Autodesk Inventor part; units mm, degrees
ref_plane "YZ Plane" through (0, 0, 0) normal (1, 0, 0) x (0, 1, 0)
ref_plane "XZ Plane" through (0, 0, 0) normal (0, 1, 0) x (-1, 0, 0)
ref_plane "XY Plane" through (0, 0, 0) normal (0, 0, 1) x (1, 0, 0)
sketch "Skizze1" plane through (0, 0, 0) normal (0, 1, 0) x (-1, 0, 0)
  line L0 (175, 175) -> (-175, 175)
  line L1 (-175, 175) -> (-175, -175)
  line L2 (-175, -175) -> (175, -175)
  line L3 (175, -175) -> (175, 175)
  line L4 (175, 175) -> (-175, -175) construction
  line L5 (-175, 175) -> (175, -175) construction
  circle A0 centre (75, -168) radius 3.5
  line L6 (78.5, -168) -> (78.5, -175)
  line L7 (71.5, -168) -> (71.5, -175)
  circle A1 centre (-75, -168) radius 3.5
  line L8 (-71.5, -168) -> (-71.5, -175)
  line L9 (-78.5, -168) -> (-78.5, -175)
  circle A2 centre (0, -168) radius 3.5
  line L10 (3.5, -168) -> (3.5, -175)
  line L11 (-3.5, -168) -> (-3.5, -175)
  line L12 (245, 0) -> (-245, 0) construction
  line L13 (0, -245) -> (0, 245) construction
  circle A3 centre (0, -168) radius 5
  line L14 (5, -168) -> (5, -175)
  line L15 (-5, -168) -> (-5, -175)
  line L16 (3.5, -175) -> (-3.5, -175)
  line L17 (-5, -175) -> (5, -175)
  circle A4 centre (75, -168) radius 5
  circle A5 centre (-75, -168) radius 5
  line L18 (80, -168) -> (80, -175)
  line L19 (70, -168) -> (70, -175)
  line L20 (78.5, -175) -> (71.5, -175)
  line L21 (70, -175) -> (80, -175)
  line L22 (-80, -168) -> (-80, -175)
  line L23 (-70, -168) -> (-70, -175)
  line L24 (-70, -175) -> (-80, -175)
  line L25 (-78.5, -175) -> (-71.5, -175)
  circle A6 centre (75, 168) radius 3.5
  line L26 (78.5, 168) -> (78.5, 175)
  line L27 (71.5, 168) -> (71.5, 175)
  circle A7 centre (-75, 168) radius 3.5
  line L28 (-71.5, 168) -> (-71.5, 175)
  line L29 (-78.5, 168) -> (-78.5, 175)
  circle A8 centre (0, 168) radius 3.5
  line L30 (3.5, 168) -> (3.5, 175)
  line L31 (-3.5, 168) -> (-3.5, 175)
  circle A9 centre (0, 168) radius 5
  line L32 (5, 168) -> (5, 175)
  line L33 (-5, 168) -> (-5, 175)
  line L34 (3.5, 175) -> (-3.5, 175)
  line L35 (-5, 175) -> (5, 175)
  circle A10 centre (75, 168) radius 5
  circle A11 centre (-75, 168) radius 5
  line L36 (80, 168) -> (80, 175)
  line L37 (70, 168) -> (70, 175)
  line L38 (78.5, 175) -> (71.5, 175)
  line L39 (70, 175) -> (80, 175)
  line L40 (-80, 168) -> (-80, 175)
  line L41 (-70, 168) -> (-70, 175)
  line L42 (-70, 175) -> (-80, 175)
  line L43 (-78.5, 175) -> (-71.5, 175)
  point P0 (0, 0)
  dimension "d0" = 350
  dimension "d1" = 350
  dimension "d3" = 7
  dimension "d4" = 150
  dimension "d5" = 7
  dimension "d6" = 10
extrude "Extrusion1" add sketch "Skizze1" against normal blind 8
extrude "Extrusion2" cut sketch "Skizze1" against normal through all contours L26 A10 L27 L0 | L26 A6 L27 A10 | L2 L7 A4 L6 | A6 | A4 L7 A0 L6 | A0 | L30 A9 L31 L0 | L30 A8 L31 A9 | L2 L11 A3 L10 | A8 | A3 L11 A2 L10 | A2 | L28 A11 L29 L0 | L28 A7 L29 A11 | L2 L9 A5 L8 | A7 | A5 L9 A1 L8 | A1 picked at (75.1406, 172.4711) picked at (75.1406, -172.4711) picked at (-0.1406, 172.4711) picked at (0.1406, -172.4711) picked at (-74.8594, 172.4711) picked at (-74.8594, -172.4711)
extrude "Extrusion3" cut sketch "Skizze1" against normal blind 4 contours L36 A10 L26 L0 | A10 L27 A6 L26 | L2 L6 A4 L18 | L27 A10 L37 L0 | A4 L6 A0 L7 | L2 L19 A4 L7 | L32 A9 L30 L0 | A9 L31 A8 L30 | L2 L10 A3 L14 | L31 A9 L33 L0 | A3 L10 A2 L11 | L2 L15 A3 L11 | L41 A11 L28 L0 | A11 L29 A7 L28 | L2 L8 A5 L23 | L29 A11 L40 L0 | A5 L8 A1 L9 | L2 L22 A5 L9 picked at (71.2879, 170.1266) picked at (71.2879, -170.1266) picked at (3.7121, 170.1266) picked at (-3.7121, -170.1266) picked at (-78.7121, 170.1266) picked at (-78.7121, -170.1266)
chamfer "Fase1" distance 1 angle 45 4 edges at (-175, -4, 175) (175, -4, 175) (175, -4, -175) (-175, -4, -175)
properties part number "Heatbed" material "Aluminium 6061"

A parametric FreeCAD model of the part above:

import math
import FreeCAD as App
import Part
import Sketcher
from FreeCAD import Vector
Q = App.Units.Quantity


def edges_at(feature, points):
    """Names of the edges that pass closest to the given points."""
    edges = feature.Shape.Edges
    near = lambda p: min(range(len(edges)), key=lambda i: edges[i].distToShape(Part.Vertex(*p))[0])
    return sorted({f"Edge{near(p) + 1}" for p in points})

doc = App.newDocument("Part")
body = doc.addObject("PartDesign::Body", "Body")

# Sketch on XZ plane
sketch1 = body.newObject("Sketcher::SketchObject", "Sketch")
sketch1.AttachmentSupport = (doc.getObject("XZ_Plane"), [""])
sketch1.MapMode = "FlatFace"
sketch1.addGeometry(Part.LineSegment(Vector(-175, -175, 0), Vector(-175, 175, 0)), False)
sketch1.addGeometry(Part.LineSegment(Vector(-175, 175, 0), Vector(175, 175, 0)), False)
sketch1.addGeometry(Part.LineSegment(Vector(175, 175, 0), Vector(175, -175, 0)), False)
sketch1.addGeometry(Part.LineSegment(Vector(175, -175, 0), Vector(-175, -175, 0)), False)
sketch1.addConstraint(Sketcher.Constraint("Coincident", 0, 2, 1, 1))
sketch1.addConstraint(Sketcher.Constraint("Coincident", 1, 2, 2, 1))
sketch1.addConstraint(Sketcher.Constraint("Coincident", 2, 2, 3, 1))
sketch1.addConstraint(Sketcher.Constraint("Coincident", 3, 2, 0, 1))
sketch1.addConstraint(Sketcher.Constraint("Vertical", 0))
sketch1.addConstraint(Sketcher.Constraint("Horizontal", 1))
sketch1.addConstraint(Sketcher.Constraint("Vertical", 2))
sketch1.addConstraint(Sketcher.Constraint("Horizontal", 3))
sketch1.addConstraint(Sketcher.Constraint("Symmetric", 0, 2, 2, 2, -1, 1))
sketch1.addConstraint(Sketcher.Constraint("Equal", 3, 0))
sketch1.addConstraint(Sketcher.Constraint("DistanceX", 1, 1, 1, 2, Q("350 mm")))
pad1 = body.newObject("PartDesign::Pad", "Pad")
pad1.Profile = sketch1
pad1.Length = 8

# Sketch on XZ plane
sketch2 = body.newObject("Sketcher::SketchObject", "Sketch001")
sketch2.AttachmentSupport = (doc.getObject("XZ_Plane"), [""])
sketch2.MapMode = "FlatFace"
sketch2.addGeometry(Part.LineSegment(Vector(-78.5, 175, 0), Vector(-71.5, 175, 0)), False)
sketch2.addGeometry(Part.LineSegment(Vector(-71.5, 175, 0), Vector(-71.5, 168, 0)), False)
sketch2.addGeometry(Part.ArcOfCircle(Part.Circle(Vector(-75, 168, 0), Vector(0, 0, 1), 3.5), math.radians(180), math.radians(360)), False)
sketch2.addGeometry(Part.LineSegment(Vector(-78.5, 168, 0), Vector(-78.5, 175, 0)), False)
sketch2.addGeometry(Part.LineSegment(Vector(-71.5, -175, 0), Vector(-78.5, -175, 0)), False)
sketch2.addGeometry(Part.LineSegment(Vector(-78.5, -175, 0), Vector(-78.5, -168, 0)), False)
sketch2.addGeometry(Part.ArcOfCircle(Part.Circle(Vector(-75, -168, 0), Vector(0, 0, 1), 3.5), math.radians(0), math.radians(180)), False)
sketch2.addGeometry(Part.LineSegment(Vector(-71.5, -168, 0), Vector(-71.5, -175, 0)), False)
sketch2.addGeometry(Part.LineSegment(Vector(-3.5, 175, 0), Vector(3.5, 175, 0)), False)
sketch2.addGeometry(Part.LineSegment(Vector(3.5, 175, 0), Vector(3.5, 168, 0)), False)
sketch2.addGeometry(Part.ArcOfCircle(Part.Circle(Vector(0, 168, 0), Vector(0, 0, 1), 3.5), math.radians(180), math.radians(360)), False)
sketch2.addGeometry(Part.LineSegment(Vector(-3.5, 168, 0), Vector(-3.5, 175, 0)), False)
sketch2.addGeometry(Part.LineSegment(Vector(3.5, -175, 0), Vector(-3.5, -175, 0)), False)
sketch2.addGeometry(Part.LineSegment(Vector(-3.5, -175, 0), Vector(-3.5, -168, 0)), False)
sketch2.addGeometry(Part.ArcOfCircle(Part.Circle(Vector(0, -168, 0), Vector(0, 0, 1), 3.5), math.radians(0), math.radians(180)), False)
sketch2.addGeometry(Part.LineSegment(Vector(3.5, -168, 0), Vector(3.5, -175, 0)), False)
sketch2.addGeometry(Part.LineSegment(Vector(71.5, 175, 0), Vector(78.5, 175, 0)), False)
sketch2.addGeometry(Part.LineSegment(Vector(78.5, 175, 0), Vector(78.5, 168, 0)), False)
sketch2.addGeometry(Part.ArcOfCircle(Part.Circle(Vector(75, 168, 0), Vector(0, 0, 1), 3.5), math.radians(180), math.radians(360)), False)
sketch2.addGeometry(Part.LineSegment(Vector(71.5, 168, 0), Vector(71.5, 175, 0)), False)
sketch2.addGeometry(Part.LineSegment(Vector(78.5, -175, 0), Vector(71.5, -175, 0)), False)
sketch2.addGeometry(Part.LineSegment(Vector(71.5, -175, 0), Vector(71.5, -168, 0)), False)
sketch2.addGeometry(Part.ArcOfCircle(Part.Circle(Vector(75, -168, 0), Vector(0, 0, 1), 3.5), math.radians(0), math.radians(180)), False)
sketch2.addGeometry(Part.LineSegment(Vector(78.5, -168, 0), Vector(78.5, -175, 0)), False)
sketch2.addConstraint(Sketcher.Constraint("Coincident", 0, 2, 1, 1))
sketch2.addConstraint(Sketcher.Constraint("Tangent", 1, 2, 2, 2))
sketch2.addConstraint(Sketcher.Constraint("Tangent", 2, 1, 3, 1))
sketch2.addConstraint(Sketcher.Constraint("Coincident", 3, 2, 0, 1))
sketch2.addConstraint(Sketcher.Constraint("Coincident", 4, 2, 5, 1))
sketch2.addConstraint(Sketcher.Constraint("Tangent", 5, 2, 6, 2))
sketch2.addConstraint(Sketcher.Constraint("Tangent", 6, 1, 7, 1))
sketch2.addConstraint(Sketcher.Constraint("Coincident", 7, 2, 4, 1))
sketch2.addConstraint(Sketcher.Constraint("Coincident", 8, 2, 9, 1))
sketch2.addConstraint(Sketcher.Constraint("Tangent", 9, 2, 10, 2))
sketch2.addConstraint(Sketcher.Constraint("Tangent", 10, 1, 11, 1))
sketch2.addConstraint(Sketcher.Constraint("Coincident", 11, 2, 8, 1))
sketch2.addConstraint(Sketcher.Constraint("Coincident", 12, 2, 13, 1))
sketch2.addConstraint(Sketcher.Constraint("Tangent", 13, 2, 14, 2))
sketch2.addConstraint(Sketcher.Constraint("Tangent", 14, 1, 15, 1))
sketch2.addConstraint(Sketcher.Constraint("Coincident", 15, 2, 12, 1))
sketch2.addConstraint(Sketcher.Constraint("Coincident", 16, 2, 17, 1))
sketch2.addConstraint(Sketcher.Constraint("Tangent", 17, 2, 18, 2))
sketch2.addConstraint(Sketcher.Constraint("Tangent", 18, 1, 19, 1))
sketch2.addConstraint(Sketcher.Constraint("Coincident", 19, 2, 16, 1))
sketch2.addConstraint(Sketcher.Constraint("Coincident", 20, 2, 21, 1))
sketch2.addConstraint(Sketcher.Constraint("Tangent", 21, 2, 22, 2))
sketch2.addConstraint(Sketcher.Constraint("Tangent", 22, 1, 23, 1))
sketch2.addConstraint(Sketcher.Constraint("Coincident", 23, 2, 20, 1))
sketch2.addConstraint(Sketcher.Constraint("Horizontal", 0))
sketch2.addConstraint(Sketcher.Constraint("Vertical", 1))
sketch2.addConstraint(Sketcher.Constraint("Vertical", 3))
sketch2.addConstraint(Sketcher.Constraint("Horizontal", 4))
sketch2.addConstraint(Sketcher.Constraint("Vertical", 5))
sketch2.addConstraint(Sketcher.Constraint("Vertical", 7))
sketch2.addConstraint(Sketcher.Constraint("Horizontal", 8))
sketch2.addConstraint(Sketcher.Constraint("Vertical", 9))
sketch2.addConstraint(Sketcher.Constraint("Vertical", 11))
sketch2.addConstraint(Sketcher.Constraint("Horizontal", 12))
sketch2.addConstraint(Sketcher.Constraint("Vertical", 13))
sketch2.addConstraint(Sketcher.Constraint("Vertical", 15))
sketch2.addConstraint(Sketcher.Constraint("Horizontal", 16))
sketch2.addConstraint(Sketcher.Constraint("Vertical", 17))
sketch2.addConstraint(Sketcher.Constraint("Vertical", 19))
sketch2.addConstraint(Sketcher.Constraint("Horizontal", 20))
sketch2.addConstraint(Sketcher.Constraint("Vertical", 21))
sketch2.addConstraint(Sketcher.Constraint("Vertical", 23))
sketch2.addConstraint(Sketcher.Constraint("Equal", 2, 6))
sketch2.addConstraint(Sketcher.Constraint("Equal", 6, 10))
sketch2.addConstraint(Sketcher.Constraint("Equal", 10, 14))
sketch2.addConstraint(Sketcher.Constraint("Equal", 14, 18))
sketch2.addConstraint(Sketcher.Constraint("Equal", 18, 22))
sketch2.addConstraint(Sketcher.Constraint("Symmetric", 10, 3, 14, 3, -1, 1))
sketch2.addConstraint(Sketcher.Constraint("Symmetric", 6, 3, 18, 3, -1, 1))
sketch2.addConstraint(Sketcher.Constraint("Symmetric", 2, 3, 22, 3, -1, 1))
sketch2.addConstraint(Sketcher.Constraint("Symmetric", 2, 3, 18, 3, -2))
sketch2.addConstraint(Sketcher.Constraint("Symmetric", 11, 2, 12, 2, -1))
sketch2.addConstraint(Sketcher.Constraint("Horizontal", 2, 3, 10, 3))
sketch2.addConstraint(Sketcher.Constraint("Horizontal", 3, 2, 8, 2))
sketch2.addConstraint(Sketcher.Constraint("Horizontal", 7, 2, 12, 2))
sketch2.addConstraint(Sketcher.Constraint("Horizontal", 11, 2, 16, 2))
sketch2.addConstraint(Sketcher.Constraint("Horizontal", 15, 2, 20, 2))
sketch2.addConstraint(Sketcher.Constraint("Equal", 20, 1))
sketch2.addConstraint(Sketcher.Constraint("Radius", 2, Q("3.5 mm")))
sketch2.addConstraint(Sketcher.Constraint("DistanceX", 2, 3, 18, 3, Q("150 mm")))
sketch2.addConstraint(Sketcher.Constraint("DistanceY", -1, 1, 2, 3, Q("168 mm")))
pocket1 = body.newObject("PartDesign::Pocket", "Pocket")
pocket1.Profile = sketch2
pocket1.Type = "ThroughAll"
pocket1.Reversed = True

# Sketch on XZ plane
sketch3 = body.newObject("Sketcher::SketchObject", "Sketch002")
sketch3.AttachmentSupport = (doc.getObject("XZ_Plane"), [""])
sketch3.MapMode = "FlatFace"
sketch3.addGeometry(Part.LineSegment(Vector(-80, 168, 0), Vector(-80, 175, 0)), False)
sketch3.addGeometry(Part.LineSegment(Vector(-80, 175, 0), Vector(-78.5, 175, 0)), False)
sketch3.addGeometry(Part.LineSegment(Vector(-78.5, 175, 0), Vector(-78.5, 168, 0)), False)
sketch3.addGeometry(Part.ArcOfCircle(Part.Circle(Vector(-75, 168, 0), Vector(0, 0, 1), 3.5), math.radians(180), math.radians(360)), False)
sketch3.addGeometry(Part.LineSegment(Vector(-71.5, 168, 0), Vector(-71.5, 175, 0)), False)
sketch3.addGeometry(Part.LineSegment(Vector(-71.5, 175, 0), Vector(-70, 175, 0)), False)
sketch3.addGeometry(Part.LineSegment(Vector(-70, 175, 0), Vector(-70, 168, 0)), False)
sketch3.addGeometry(Part.ArcOfCircle(Part.Circle(Vector(-75, 168, 0), Vector(0, 0, 1), 5), math.radians(180), math.radians(360)), False)
sketch3.addGeometry(Part.LineSegment(Vector(-78.5, -175, 0), Vector(-80, -175, 0)), False)
sketch3.addGeometry(Part.LineSegment(Vector(-80, -175, 0), Vector(-80, -168, 0)), False)
sketch3.addGeometry(Part.ArcOfCircle(Part.Circle(Vector(-75, -168, 0), Vector(0, 0, 1), 5), math.radians(0), math.radians(180)), False)
sketch3.addGeometry(Part.LineSegment(Vector(-70, -168, 0), Vector(-70, -175, 0)), False)
sketch3.addGeometry(Part.LineSegment(Vector(-70, -175, 0), Vector(-71.5, -175, 0)), False)
sketch3.addGeometry(Part.LineSegment(Vector(-71.5, -175, 0), Vector(-71.5, -168, 0)), False)
sketch3.addGeometry(Part.ArcOfCircle(Part.Circle(Vector(-75, -168, 0), Vector(0, 0, 1), 3.5), math.radians(0), math.radians(180)), False)
sketch3.addGeometry(Part.LineSegment(Vector(-78.5, -168, 0), Vector(-78.5, -175, 0)), False)
sketch3.addGeometry(Part.LineSegment(Vector(-5, 168, 0), Vector(-5, 175, 0)), False)
sketch3.addGeometry(Part.LineSegment(Vector(-5, 175, 0), Vector(-3.5, 175, 0)), False)
sketch3.addGeometry(Part.LineSegment(Vector(-3.5, 175, 0), Vector(-3.5, 168, 0)), False)
sketch3.addGeometry(Part.ArcOfCircle(Part.Circle(Vector(0, 168, 0), Vector(0, 0, 1), 3.5), math.radians(180), math.radians(360)), False)
sketch3.addGeometry(Part.LineSegment(Vector(3.5, 168, 0), Vector(3.5, 175, 0)), False)
sketch3.addGeometry(Part.LineSegment(Vector(3.5, 175, 0), Vector(5, 175, 0)), False)
sketch3.addGeometry(Part.LineSegment(Vector(5, 175, 0), Vector(5, 168, 0)), False)
sketch3.addGeometry(Part.ArcOfCircle(Part.Circle(Vector(0, 168, 0), Vector(0, 0, 1), 5), math.radians(180), math.radians(360)), False)
sketch3.addGeometry(Part.LineSegment(Vector(-3.5, -175, 0), Vector(-5, -175, 0)), False)
sketch3.addGeometry(Part.LineSegment(Vector(-5, -175, 0), Vector(-5, -168, 0)), False)
sketch3.addGeometry(Part.ArcOfCircle(Part.Circle(Vector(0, -168, 0), Vector(0, 0, 1), 5), math.radians(0), math.radians(180)), False)
sketch3.addGeometry(Part.LineSegment(Vector(5, -168, 0), Vector(5, -175, 0)), False)
sketch3.addGeometry(Part.LineSegment(Vector(5, -175, 0), Vector(3.5, -175, 0)), False)
sketch3.addGeometry(Part.LineSegment(Vector(3.5, -175, 0), Vector(3.5, -168, 0)), False)
sketch3.addGeometry(Part.ArcOfCircle(Part.Circle(Vector(0, -168, 0), Vector(0, 0, 1), 3.5), math.radians(0), math.radians(180)), False)
sketch3.addGeometry(Part.LineSegment(Vector(-3.5, -168, 0), Vector(-3.5, -175, 0)), False)
sketch3.addGeometry(Part.LineSegment(Vector(70, 168, 0), Vector(70, 175, 0)), False)
sketch3.addGeometry(Part.LineSegment(Vector(70, 175, 0), Vector(71.5, 175, 0)), False)
sketch3.addGeometry(Part.LineSegment(Vector(71.5, 175, 0), Vector(71.5, 168, 0)), False)
sketch3.addGeometry(Part.ArcOfCircle(Part.Circle(Vector(75, 168, 0), Vector(0, 0, 1), 3.5), math.radians(180), math.radians(360)), False)
sketch3.addGeometry(Part.LineSegment(Vector(78.5, 168, 0), Vector(78.5, 175, 0)), False)
sketch3.addGeometry(Part.LineSegment(Vector(78.5, 175, 0), Vector(80, 175, 0)), False)
sketch3.addGeometry(Part.LineSegment(Vector(80, 175, 0), Vector(80, 168, 0)), False)
sketch3.addGeometry(Part.ArcOfCircle(Part.Circle(Vector(75, 168, 0), Vector(0, 0, 1), 5), math.radians(180), math.radians(360)), False)
sketch3.addGeometry(Part.LineSegment(Vector(71.5, -175, 0), Vector(70, -175, 0)), False)
sketch3.addGeometry(Part.LineSegment(Vector(70, -175, 0), Vector(70, -168, 0)), False)
sketch3.addGeometry(Part.ArcOfCircle(Part.Circle(Vector(75, -168, 0), Vector(0, 0, 1), 5), math.radians(0), math.radians(180)), False)
sketch3.addGeometry(Part.LineSegment(Vector(80, -168, 0), Vector(80, -175, 0)), False)
sketch3.addGeometry(Part.LineSegment(Vector(80, -175, 0), Vector(78.5, -175, 0)), False)
sketch3.addGeometry(Part.LineSegment(Vector(78.5, -175, 0), Vector(78.5, -168, 0)), False)
sketch3.addGeometry(Part.ArcOfCircle(Part.Circle(Vector(75, -168, 0), Vector(0, 0, 1), 3.5), math.radians(0), math.radians(180)), False)
sketch3.addGeometry(Part.LineSegment(Vector(71.5, -168, 0), Vector(71.5, -175, 0)), False)
sketch3.addConstraint(Sketcher.Constraint("Coincident", 0, 2, 1, 1))
sketch3.addConstraint(Sketcher.Constraint("Coincident", 1, 2, 2, 1))
sketch3.addConstraint(Sketcher.Constraint("Tangent", 2, 2, 3, 1))
sketch3.addConstraint(Sketcher.Constraint("Tangent", 3, 2, 4, 1))
sketch3.addConstraint(Sketcher.Constraint("Coincident", 4, 2, 5, 1))
sketch3.addConstraint(Sketcher.Constraint("Coincident", 5, 2, 6, 1))
sketch3.addConstraint(Sketcher.Constraint("Tangent", 6, 2, 7, 2))
sketch3.addConstraint(Sketcher.Constraint("Tangent", 7, 1, 0, 1))
sketch3.addConstraint(Sketcher.Constraint("Coincident", 8, 2, 9, 1))
sketch3.addConstraint(Sketcher.Constraint("Tangent", 9, 2, 10, 2))
sketch3.addConstraint(Sketcher.Constraint("Tangent", 10, 1, 11, 1))
sketch3.addConstraint(Sketcher.Constraint("Coincident", 11, 2, 12, 1))
sketch3.addConstraint(Sketcher.Constraint("Coincident", 12, 2, 13, 1))
sketch3.addConstraint(Sketcher.Constraint("Tangent", 13, 2, 14, 1))
sketch3.addConstraint(Sketcher.Constraint("Tangent", 14, 2, 15, 1))
sketch3.addConstraint(Sketcher.Constraint("Coincident", 15, 2, 8, 1))
sketch3.addConstraint(Sketcher.Constraint("Coincident", 16, 2, 17, 1))
sketch3.addConstraint(Sketcher.Constraint("Coincident", 17, 2, 18, 1))
sketch3.addConstraint(Sketcher.Constraint("Tangent", 18, 2, 19, 1))
sketch3.addConstraint(Sketcher.Constraint("Tangent", 19, 2, 20, 1))
sketch3.addConstraint(Sketcher.Constraint("Coincident", 20, 2, 21, 1))
sketch3.addConstraint(Sketcher.Constraint("Coincident", 21, 2, 22, 1))
sketch3.addConstraint(Sketcher.Constraint("Tangent", 22, 2, 23, 2))
sketch3.addConstraint(Sketcher.Constraint("Tangent", 23, 1, 16, 1))
sketch3.addConstraint(Sketcher.Constraint("Coincident", 24, 2, 25, 1))
sketch3.addConstraint(Sketcher.Constraint("Tangent", 25, 2, 26, 2))
sketch3.addConstraint(Sketcher.Constraint("Tangent", 26, 1, 27, 1))
sketch3.addConstraint(Sketcher.Constraint("Coincident", 27, 2, 28, 1))
sketch3.addConstraint(Sketcher.Constraint("Coincident", 28, 2, 29, 1))
sketch3.addConstraint(Sketcher.Constraint("Tangent", 29, 2, 30, 1))
sketch3.addConstraint(Sketcher.Constraint("Tangent", 30, 2, 31, 1))
sketch3.addConstraint(Sketcher.Constraint("Coincident", 31, 2, 24, 1))
sketch3.addConstraint(Sketcher.Constraint("Coincident", 32, 2, 33, 1))
sketch3.addConstraint(Sketcher.Constraint("Coincident", 33, 2, 34, 1))
sketch3.addConstraint(Sketcher.Constraint("Tangent", 34, 2, 35, 1))
sketch3.addConstraint(Sketcher.Constraint("Tangent", 35, 2, 36, 1))
sketch3.addConstraint(Sketcher.Constraint("Coincident", 36, 2, 37, 1))
sketch3.addConstraint(Sketcher.Constraint("Coincident", 37, 2, 38, 1))
sketch3.addConstraint(Sketcher.Constraint("Tangent", 38, 2, 39, 2))
sketch3.addConstraint(Sketcher.Constraint("Tangent", 39, 1, 32, 1))
sketch3.addConstraint(Sketcher.Constraint("Coincident", 40, 2, 41, 1))
sketch3.addConstraint(Sketcher.Constraint("Tangent", 41, 2, 42, 2))
sketch3.addConstraint(Sketcher.Constraint("Tangent", 42, 1, 43, 1))
sketch3.addConstraint(Sketcher.Constraint("Coincident", 43, 2, 44, 1))
sketch3.addConstraint(Sketcher.Constraint("Coincident", 44, 2, 45, 1))
sketch3.addConstraint(Sketcher.Constraint("Tangent", 45, 2, 46, 1))
sketch3.addConstraint(Sketcher.Constraint("Tangent", 46, 2, 47, 1))
sketch3.addConstraint(Sketcher.Constraint("Coincident", 47, 2, 40, 1))
sketch3.addConstraint(Sketcher.Constraint("Vertical", 0))
sketch3.addConstraint(Sketcher.Constraint("Horizontal", 1))
sketch3.addConstraint(Sketcher.Constraint("Vertical", 2))
sketch3.addConstraint(Sketcher.Constraint("Vertical", 4))
sketch3.addConstraint(Sketcher.Constraint("Horizontal", 5))
sketch3.addConstraint(Sketcher.Constraint("Vertical", 6))
sketch3.addConstraint(Sketcher.Constraint("Horizontal", 8))
sketch3.addConstraint(Sketcher.Constraint("Vertical", 9))
sketch3.addConstraint(Sketcher.Constraint("Vertical", 11))
sketch3.addConstraint(Sketcher.Constraint("Horizontal", 12))
sketch3.addConstraint(Sketcher.Constraint("Vertical", 13))
sketch3.addConstraint(Sketcher.Constraint("Vertical", 15))
sketch3.addConstraint(Sketcher.Constraint("Vertical", 16))
sketch3.addConstraint(Sketcher.Constraint("Horizontal", 17))
sketch3.addConstraint(Sketcher.Constraint("Vertical", 18))
sketch3.addConstraint(Sketcher.Constraint("Vertical", 20))
sketch3.addConstraint(Sketcher.Constraint("Horizontal", 21))
sketch3.addConstraint(Sketcher.Constraint("Vertical", 22))
sketch3.addConstraint(Sketcher.Constraint("Horizontal", 24))
sketch3.addConstraint(Sketcher.Constraint("Vertical", 25))
sketch3.addConstraint(Sketcher.Constraint("Vertical", 27))
sketch3.addConstraint(Sketcher.Constraint("Horizontal", 28))
sketch3.addConstraint(Sketcher.Constraint("Vertical", 29))
sketch3.addConstraint(Sketcher.Constraint("Vertical", 31))
sketch3.addConstraint(Sketcher.Constraint("Vertical", 32))
sketch3.addConstraint(Sketcher.Constraint("Horizontal", 33))
sketch3.addConstraint(Sketcher.Constraint("Vertical", 34))
sketch3.addConstraint(Sketcher.Constraint("Vertical", 36))
sketch3.addConstraint(Sketcher.Constraint("Horizontal", 37))
sketch3.addConstraint(Sketcher.Constraint("Vertical", 38))
sketch3.addConstraint(Sketcher.Constraint("Horizontal", 40))
sketch3.addConstraint(Sketcher.Constraint("Vertical", 41))
sketch3.addConstraint(Sketcher.Constraint("Vertical", 43))
sketch3.addConstraint(Sketcher.Constraint("Horizontal", 44))
sketch3.addConstraint(Sketcher.Constraint("Vertical", 45))
sketch3.addConstraint(Sketcher.Constraint("Vertical", 47))
sketch3.addConstraint(Sketcher.Constraint("Coincident", 7, 3, 3, 3))
sketch3.addConstraint(Sketcher.Constraint("Coincident", 14, 3, 10, 3))
sketch3.addConstraint(Sketcher.Constraint("Coincident", 23, 3, 19, 3))
sketch3.addConstraint(Sketcher.Constraint("Coincident", 30, 3, 26, 3))
sketch3.addConstraint(Sketcher.Constraint("Coincident", 39, 3, 35, 3))
sketch3.addConstraint(Sketcher.Constraint("Coincident", 46, 3, 42, 3))
sketch3.addConstraint(Sketcher.Constraint("Equal", 7, 10))
sketch3.addConstraint(Sketcher.Constraint("Equal", 3, 14))
sketch3.addConstraint(Sketcher.Constraint("Equal", 14, 19))
sketch3.addConstraint(Sketcher.Constraint("Equal", 10, 23))
sketch3.addConstraint(Sketcher.Constraint("Equal", 23, 26))
sketch3.addConstraint(Sketcher.Constraint("Equal", 19, 30))
sketch3.addConstraint(Sketcher.Constraint("Equal", 30, 35))
sketch3.addConstraint(Sketcher.Constraint("Equal", 26, 39))
sketch3.addConstraint(Sketcher.Constraint("Equal", 39, 42))
sketch3.addConstraint(Sketcher.Constraint("Equal", 35, 46))
sketch3.addConstraint(Sketcher.Constraint("Symmetric", 19, 3, 26, 3, -1, 1))
sketch3.addConstraint(Sketcher.Constraint("Symmetric", 10, 3, 35, 3, -1, 1))
sketch3.addConstraint(Sketcher.Constraint("Symmetric", 3, 3, 42, 3, -1, 1))
sketch3.addConstraint(Sketcher.Constraint("Symmetric", 3, 3, 35, 3, -2))
sketch3.addConstraint(Sketcher.Constraint("Symmetric", 17, 2, 20, 2, -2))
sketch3.addConstraint(Sketcher.Constraint("Horizontal", 7, 3, 19, 3))
sketch3.addConstraint(Sketcher.Constraint("Horizontal", 1, 2, 4, 2))
sketch3.addConstraint(Sketcher.Constraint("Horizontal", 8, 2, 11, 2))
sketch3.addConstraint(Sketcher.Constraint("Horizontal", 5, 2, 16, 2))
sketch3.addConstraint(Sketcher.Constraint("Horizontal", 15, 2, 24, 2))
sketch3.addConstraint(Sketcher.Constraint("Horizontal", 24, 2, 27, 2))
sketch3.addConstraint(Sketcher.Constraint("Horizontal", 21, 2, 32, 2))
sketch3.addConstraint(Sketcher.Constraint("Horizontal", 33, 2, 36, 2))
sketch3.addConstraint(Sketcher.Constraint("Horizontal", 31, 2, 40, 2))
sketch3.addConstraint(Sketcher.Constraint("Horizontal", 40, 2, 43, 2))
sketch3.addConstraint(Sketcher.Constraint("Equal", 6, 9))
sketch3.addConstraint(Sketcher.Constraint("Radius", 7, Q("5 mm")))
sketch3.addConstraint(Sketcher.Constraint("Radius", 3, Q("3.5 mm")))
sketch3.addConstraint(Sketcher.Constraint("DistanceY", 0, 1, 0, 2, Q("7 mm")))
sketch3.addConstraint(Sketcher.Constraint("DistanceX", 3, 3, 35, 3, Q("150 mm")))
sketch3.addConstraint(Sketcher.Constraint("DistanceY", -1, 1, 3, 3, Q("168 mm")))
pocket2 = body.newObject("PartDesign::Pocket", "Pocket001")
pocket2.Profile = sketch3
pocket2.Length = 4
pocket2.Reversed = True
doc.recompute()

chamfer = body.newObject("PartDesign::Chamfer", "Chamfer")
chamfer.Base = (pocket2, edges_at(pocket2, [
    (-175, -4, 175),
    (175, -4, 175),
    (175, -4, -175),
    (-175, -4, -175),
]))
chamfer.Size = 1

doc.recompute()
